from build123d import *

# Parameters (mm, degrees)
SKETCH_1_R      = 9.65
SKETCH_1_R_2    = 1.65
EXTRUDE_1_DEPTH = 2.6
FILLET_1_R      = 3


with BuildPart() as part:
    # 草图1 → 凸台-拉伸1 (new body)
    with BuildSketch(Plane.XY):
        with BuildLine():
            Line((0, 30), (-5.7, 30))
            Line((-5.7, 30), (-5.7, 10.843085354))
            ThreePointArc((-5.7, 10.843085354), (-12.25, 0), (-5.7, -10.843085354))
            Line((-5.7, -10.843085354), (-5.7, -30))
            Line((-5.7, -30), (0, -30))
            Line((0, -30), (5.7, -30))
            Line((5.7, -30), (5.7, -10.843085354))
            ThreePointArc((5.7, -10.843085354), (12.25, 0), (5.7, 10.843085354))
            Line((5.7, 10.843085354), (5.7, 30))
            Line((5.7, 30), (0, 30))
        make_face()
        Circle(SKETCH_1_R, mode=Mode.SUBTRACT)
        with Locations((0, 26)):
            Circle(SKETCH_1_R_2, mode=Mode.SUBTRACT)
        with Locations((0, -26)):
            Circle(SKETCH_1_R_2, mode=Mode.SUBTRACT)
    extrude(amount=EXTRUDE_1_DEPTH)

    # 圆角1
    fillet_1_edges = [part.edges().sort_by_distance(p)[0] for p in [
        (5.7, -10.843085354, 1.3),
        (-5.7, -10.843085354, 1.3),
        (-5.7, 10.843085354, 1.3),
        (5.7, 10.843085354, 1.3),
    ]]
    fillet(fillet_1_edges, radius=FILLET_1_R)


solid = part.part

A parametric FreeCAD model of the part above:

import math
import FreeCAD as App
import Part
import Sketcher

V = App.Vector
Q = App.Units.Quantity


def edges_at(feature, points):
    """Names of the edges that pass closest to the given points."""
    edges = feature.Shape.Edges
    near = lambda p: min(range(len(edges)), key=lambda i: edges[i].distToShape(Part.Vertex(*p))[0])
    return sorted({f"Edge{near(p) + 1}" for p in points})

doc = App.newDocument("Part")
params = doc.addObject("Spreadsheet::Sheet", "Params")
for row, (alias, value) in enumerate([
    ("sketch1_diameter", "3.3 mm"),
    ("sketch1_diameter2", "19.3 mm"),
    ("sketch1_radius", "12.25 mm"),
    ("sketch1_width", "11.4 mm"),
    ("pad1_length", "2.6 mm"),
    ("fillet_radius", "3 mm"),
], start=1):
    params.set(f"A{row}", alias)
    params.set(f"B{row}", "=" + value)
    params.setAlias(f"B{row}", alias)

body = doc.addObject("PartDesign::Body", "Body")

sketch1 = body.newObject("Sketcher::SketchObject", "Sketch")
sketch1.AttachmentSupport = (doc.getObject("XY_Plane"), [""])
sketch1.MapMode = "FlatFace"
sketch1.addGeometry([
    Part.LineSegment(V(-5.7, 30, 0), V(-5.7, 10.843085, 0)),
    Part.ArcOfCircle(Part.Circle(V(0, 0, 0), V(0, 0, 1), 12.25), math.radians(117.730036), math.radians(242.269964)),
    Part.LineSegment(V(-5.7, -10.843085, 0), V(-5.7, -30, 0)),
    Part.LineSegment(V(-5.7, -30, 0), V(5.7, -30, 0)),
    Part.LineSegment(V(5.7, -30, 0), V(5.7, -10.843085, 0)),
    Part.ArcOfCircle(Part.Circle(V(0, 0, 0), V(0, 0, 1), 12.25), math.radians(-62.269964), math.radians(62.269964)),
    Part.LineSegment(V(5.7, 10.843085, 0), V(5.7, 30, 0)),
    Part.LineSegment(V(5.7, 30, 0), V(-5.7, 30, 0)),
    Part.Circle(V(0, -26, 0), V(0, 0, 1), 1.65),
    Part.Circle(V(0, 0, 0), V(0, 0, 1), 9.65),
    Part.Circle(V(0, 26, 0), V(0, 0, 1), 1.65),
], False)
sketch1.addConstraint([
    Sketcher.Constraint("Coincident", 0, 2, 1, 1),
    Sketcher.Constraint("Coincident", 1, 2, 2, 1),
    Sketcher.Constraint("Coincident", 2, 2, 3, 1),
    Sketcher.Constraint("Coincident", 3, 2, 4, 1),
    Sketcher.Constraint("Coincident", 4, 2, 5, 1),
    Sketcher.Constraint("Coincident", 5, 2, 6, 1),
    Sketcher.Constraint("Coincident", 6, 2, 7, 1),
    Sketcher.Constraint("Coincident", 7, 2, 0, 1),
    Sketcher.Constraint("Vertical", 0),
    Sketcher.Constraint("Vertical", 2),
    Sketcher.Constraint("Horizontal", 3),
    Sketcher.Constraint("Vertical", 4),
    Sketcher.Constraint("Vertical", 6),
    Sketcher.Constraint("Horizontal", 7),
    Sketcher.Constraint("Coincident", 1, 3, -1, 1),
    Sketcher.Constraint("Coincident", 5, 3, -1, 1),
    Sketcher.Constraint("Coincident", 9, 3, -1, 1),
    Sketcher.Constraint("Equal", 1, 5),
    Sketcher.Constraint("Equal", 8, 10),
    Sketcher.Constraint("Symmetric", 8, 3, 10, 3, -1, 1),
    Sketcher.Constraint("Symmetric", 2, 2, 6, 2, -1, 1),
    Sketcher.Constraint("PointOnObject", 8, 3, -2),
    Sketcher.Constraint("Horizontal", 1, 2, 4, 2),
    Sketcher.Constraint("Horizontal", 0, 2, 5, 2),
    Sketcher.Constraint("Diameter", 8, Q("3.3 mm")),
    Sketcher.Constraint("Diameter", 9, Q("19.3 mm")),
    Sketcher.Constraint("Radius", 1, Q("12.25 mm")),
    Sketcher.Constraint("DistanceX", 3, 1, 3, 2, Q("11.4 mm")),
    Sketcher.Constraint("DistanceY", 8, 3, -1, 1, Q("26 mm")),
    Sketcher.Constraint("DistanceY", 2, 2, -1, 1, Q("30 mm")),
])
sketch1.setExpression("Constraints[24]", "Params.sketch1_diameter")
sketch1.setExpression("Constraints[25]", "Params.sketch1_diameter2")
sketch1.setExpression("Constraints[26]", "Params.sketch1_radius")
sketch1.setExpression("Constraints[27]", "Params.sketch1_width")
pad1 = body.newObject("PartDesign::Pad", "Pad")
pad1.Profile = sketch1
pad1.setExpression("Length", "Params.pad1_length")
doc.recompute()

fillet = body.newObject("PartDesign::Fillet", "Fillet")
fillet.Base = (pad1, edges_at(pad1, [
    (5.7, -10.843, 1.3),
    (-5.7, -10.843, 1.3),
    (-5.7, 10.843, 1.3),
    (5.7, 10.843, 1.3),
]))
fillet.setExpression("Radius", "Params.fillet_radius")

doc.recompute()
